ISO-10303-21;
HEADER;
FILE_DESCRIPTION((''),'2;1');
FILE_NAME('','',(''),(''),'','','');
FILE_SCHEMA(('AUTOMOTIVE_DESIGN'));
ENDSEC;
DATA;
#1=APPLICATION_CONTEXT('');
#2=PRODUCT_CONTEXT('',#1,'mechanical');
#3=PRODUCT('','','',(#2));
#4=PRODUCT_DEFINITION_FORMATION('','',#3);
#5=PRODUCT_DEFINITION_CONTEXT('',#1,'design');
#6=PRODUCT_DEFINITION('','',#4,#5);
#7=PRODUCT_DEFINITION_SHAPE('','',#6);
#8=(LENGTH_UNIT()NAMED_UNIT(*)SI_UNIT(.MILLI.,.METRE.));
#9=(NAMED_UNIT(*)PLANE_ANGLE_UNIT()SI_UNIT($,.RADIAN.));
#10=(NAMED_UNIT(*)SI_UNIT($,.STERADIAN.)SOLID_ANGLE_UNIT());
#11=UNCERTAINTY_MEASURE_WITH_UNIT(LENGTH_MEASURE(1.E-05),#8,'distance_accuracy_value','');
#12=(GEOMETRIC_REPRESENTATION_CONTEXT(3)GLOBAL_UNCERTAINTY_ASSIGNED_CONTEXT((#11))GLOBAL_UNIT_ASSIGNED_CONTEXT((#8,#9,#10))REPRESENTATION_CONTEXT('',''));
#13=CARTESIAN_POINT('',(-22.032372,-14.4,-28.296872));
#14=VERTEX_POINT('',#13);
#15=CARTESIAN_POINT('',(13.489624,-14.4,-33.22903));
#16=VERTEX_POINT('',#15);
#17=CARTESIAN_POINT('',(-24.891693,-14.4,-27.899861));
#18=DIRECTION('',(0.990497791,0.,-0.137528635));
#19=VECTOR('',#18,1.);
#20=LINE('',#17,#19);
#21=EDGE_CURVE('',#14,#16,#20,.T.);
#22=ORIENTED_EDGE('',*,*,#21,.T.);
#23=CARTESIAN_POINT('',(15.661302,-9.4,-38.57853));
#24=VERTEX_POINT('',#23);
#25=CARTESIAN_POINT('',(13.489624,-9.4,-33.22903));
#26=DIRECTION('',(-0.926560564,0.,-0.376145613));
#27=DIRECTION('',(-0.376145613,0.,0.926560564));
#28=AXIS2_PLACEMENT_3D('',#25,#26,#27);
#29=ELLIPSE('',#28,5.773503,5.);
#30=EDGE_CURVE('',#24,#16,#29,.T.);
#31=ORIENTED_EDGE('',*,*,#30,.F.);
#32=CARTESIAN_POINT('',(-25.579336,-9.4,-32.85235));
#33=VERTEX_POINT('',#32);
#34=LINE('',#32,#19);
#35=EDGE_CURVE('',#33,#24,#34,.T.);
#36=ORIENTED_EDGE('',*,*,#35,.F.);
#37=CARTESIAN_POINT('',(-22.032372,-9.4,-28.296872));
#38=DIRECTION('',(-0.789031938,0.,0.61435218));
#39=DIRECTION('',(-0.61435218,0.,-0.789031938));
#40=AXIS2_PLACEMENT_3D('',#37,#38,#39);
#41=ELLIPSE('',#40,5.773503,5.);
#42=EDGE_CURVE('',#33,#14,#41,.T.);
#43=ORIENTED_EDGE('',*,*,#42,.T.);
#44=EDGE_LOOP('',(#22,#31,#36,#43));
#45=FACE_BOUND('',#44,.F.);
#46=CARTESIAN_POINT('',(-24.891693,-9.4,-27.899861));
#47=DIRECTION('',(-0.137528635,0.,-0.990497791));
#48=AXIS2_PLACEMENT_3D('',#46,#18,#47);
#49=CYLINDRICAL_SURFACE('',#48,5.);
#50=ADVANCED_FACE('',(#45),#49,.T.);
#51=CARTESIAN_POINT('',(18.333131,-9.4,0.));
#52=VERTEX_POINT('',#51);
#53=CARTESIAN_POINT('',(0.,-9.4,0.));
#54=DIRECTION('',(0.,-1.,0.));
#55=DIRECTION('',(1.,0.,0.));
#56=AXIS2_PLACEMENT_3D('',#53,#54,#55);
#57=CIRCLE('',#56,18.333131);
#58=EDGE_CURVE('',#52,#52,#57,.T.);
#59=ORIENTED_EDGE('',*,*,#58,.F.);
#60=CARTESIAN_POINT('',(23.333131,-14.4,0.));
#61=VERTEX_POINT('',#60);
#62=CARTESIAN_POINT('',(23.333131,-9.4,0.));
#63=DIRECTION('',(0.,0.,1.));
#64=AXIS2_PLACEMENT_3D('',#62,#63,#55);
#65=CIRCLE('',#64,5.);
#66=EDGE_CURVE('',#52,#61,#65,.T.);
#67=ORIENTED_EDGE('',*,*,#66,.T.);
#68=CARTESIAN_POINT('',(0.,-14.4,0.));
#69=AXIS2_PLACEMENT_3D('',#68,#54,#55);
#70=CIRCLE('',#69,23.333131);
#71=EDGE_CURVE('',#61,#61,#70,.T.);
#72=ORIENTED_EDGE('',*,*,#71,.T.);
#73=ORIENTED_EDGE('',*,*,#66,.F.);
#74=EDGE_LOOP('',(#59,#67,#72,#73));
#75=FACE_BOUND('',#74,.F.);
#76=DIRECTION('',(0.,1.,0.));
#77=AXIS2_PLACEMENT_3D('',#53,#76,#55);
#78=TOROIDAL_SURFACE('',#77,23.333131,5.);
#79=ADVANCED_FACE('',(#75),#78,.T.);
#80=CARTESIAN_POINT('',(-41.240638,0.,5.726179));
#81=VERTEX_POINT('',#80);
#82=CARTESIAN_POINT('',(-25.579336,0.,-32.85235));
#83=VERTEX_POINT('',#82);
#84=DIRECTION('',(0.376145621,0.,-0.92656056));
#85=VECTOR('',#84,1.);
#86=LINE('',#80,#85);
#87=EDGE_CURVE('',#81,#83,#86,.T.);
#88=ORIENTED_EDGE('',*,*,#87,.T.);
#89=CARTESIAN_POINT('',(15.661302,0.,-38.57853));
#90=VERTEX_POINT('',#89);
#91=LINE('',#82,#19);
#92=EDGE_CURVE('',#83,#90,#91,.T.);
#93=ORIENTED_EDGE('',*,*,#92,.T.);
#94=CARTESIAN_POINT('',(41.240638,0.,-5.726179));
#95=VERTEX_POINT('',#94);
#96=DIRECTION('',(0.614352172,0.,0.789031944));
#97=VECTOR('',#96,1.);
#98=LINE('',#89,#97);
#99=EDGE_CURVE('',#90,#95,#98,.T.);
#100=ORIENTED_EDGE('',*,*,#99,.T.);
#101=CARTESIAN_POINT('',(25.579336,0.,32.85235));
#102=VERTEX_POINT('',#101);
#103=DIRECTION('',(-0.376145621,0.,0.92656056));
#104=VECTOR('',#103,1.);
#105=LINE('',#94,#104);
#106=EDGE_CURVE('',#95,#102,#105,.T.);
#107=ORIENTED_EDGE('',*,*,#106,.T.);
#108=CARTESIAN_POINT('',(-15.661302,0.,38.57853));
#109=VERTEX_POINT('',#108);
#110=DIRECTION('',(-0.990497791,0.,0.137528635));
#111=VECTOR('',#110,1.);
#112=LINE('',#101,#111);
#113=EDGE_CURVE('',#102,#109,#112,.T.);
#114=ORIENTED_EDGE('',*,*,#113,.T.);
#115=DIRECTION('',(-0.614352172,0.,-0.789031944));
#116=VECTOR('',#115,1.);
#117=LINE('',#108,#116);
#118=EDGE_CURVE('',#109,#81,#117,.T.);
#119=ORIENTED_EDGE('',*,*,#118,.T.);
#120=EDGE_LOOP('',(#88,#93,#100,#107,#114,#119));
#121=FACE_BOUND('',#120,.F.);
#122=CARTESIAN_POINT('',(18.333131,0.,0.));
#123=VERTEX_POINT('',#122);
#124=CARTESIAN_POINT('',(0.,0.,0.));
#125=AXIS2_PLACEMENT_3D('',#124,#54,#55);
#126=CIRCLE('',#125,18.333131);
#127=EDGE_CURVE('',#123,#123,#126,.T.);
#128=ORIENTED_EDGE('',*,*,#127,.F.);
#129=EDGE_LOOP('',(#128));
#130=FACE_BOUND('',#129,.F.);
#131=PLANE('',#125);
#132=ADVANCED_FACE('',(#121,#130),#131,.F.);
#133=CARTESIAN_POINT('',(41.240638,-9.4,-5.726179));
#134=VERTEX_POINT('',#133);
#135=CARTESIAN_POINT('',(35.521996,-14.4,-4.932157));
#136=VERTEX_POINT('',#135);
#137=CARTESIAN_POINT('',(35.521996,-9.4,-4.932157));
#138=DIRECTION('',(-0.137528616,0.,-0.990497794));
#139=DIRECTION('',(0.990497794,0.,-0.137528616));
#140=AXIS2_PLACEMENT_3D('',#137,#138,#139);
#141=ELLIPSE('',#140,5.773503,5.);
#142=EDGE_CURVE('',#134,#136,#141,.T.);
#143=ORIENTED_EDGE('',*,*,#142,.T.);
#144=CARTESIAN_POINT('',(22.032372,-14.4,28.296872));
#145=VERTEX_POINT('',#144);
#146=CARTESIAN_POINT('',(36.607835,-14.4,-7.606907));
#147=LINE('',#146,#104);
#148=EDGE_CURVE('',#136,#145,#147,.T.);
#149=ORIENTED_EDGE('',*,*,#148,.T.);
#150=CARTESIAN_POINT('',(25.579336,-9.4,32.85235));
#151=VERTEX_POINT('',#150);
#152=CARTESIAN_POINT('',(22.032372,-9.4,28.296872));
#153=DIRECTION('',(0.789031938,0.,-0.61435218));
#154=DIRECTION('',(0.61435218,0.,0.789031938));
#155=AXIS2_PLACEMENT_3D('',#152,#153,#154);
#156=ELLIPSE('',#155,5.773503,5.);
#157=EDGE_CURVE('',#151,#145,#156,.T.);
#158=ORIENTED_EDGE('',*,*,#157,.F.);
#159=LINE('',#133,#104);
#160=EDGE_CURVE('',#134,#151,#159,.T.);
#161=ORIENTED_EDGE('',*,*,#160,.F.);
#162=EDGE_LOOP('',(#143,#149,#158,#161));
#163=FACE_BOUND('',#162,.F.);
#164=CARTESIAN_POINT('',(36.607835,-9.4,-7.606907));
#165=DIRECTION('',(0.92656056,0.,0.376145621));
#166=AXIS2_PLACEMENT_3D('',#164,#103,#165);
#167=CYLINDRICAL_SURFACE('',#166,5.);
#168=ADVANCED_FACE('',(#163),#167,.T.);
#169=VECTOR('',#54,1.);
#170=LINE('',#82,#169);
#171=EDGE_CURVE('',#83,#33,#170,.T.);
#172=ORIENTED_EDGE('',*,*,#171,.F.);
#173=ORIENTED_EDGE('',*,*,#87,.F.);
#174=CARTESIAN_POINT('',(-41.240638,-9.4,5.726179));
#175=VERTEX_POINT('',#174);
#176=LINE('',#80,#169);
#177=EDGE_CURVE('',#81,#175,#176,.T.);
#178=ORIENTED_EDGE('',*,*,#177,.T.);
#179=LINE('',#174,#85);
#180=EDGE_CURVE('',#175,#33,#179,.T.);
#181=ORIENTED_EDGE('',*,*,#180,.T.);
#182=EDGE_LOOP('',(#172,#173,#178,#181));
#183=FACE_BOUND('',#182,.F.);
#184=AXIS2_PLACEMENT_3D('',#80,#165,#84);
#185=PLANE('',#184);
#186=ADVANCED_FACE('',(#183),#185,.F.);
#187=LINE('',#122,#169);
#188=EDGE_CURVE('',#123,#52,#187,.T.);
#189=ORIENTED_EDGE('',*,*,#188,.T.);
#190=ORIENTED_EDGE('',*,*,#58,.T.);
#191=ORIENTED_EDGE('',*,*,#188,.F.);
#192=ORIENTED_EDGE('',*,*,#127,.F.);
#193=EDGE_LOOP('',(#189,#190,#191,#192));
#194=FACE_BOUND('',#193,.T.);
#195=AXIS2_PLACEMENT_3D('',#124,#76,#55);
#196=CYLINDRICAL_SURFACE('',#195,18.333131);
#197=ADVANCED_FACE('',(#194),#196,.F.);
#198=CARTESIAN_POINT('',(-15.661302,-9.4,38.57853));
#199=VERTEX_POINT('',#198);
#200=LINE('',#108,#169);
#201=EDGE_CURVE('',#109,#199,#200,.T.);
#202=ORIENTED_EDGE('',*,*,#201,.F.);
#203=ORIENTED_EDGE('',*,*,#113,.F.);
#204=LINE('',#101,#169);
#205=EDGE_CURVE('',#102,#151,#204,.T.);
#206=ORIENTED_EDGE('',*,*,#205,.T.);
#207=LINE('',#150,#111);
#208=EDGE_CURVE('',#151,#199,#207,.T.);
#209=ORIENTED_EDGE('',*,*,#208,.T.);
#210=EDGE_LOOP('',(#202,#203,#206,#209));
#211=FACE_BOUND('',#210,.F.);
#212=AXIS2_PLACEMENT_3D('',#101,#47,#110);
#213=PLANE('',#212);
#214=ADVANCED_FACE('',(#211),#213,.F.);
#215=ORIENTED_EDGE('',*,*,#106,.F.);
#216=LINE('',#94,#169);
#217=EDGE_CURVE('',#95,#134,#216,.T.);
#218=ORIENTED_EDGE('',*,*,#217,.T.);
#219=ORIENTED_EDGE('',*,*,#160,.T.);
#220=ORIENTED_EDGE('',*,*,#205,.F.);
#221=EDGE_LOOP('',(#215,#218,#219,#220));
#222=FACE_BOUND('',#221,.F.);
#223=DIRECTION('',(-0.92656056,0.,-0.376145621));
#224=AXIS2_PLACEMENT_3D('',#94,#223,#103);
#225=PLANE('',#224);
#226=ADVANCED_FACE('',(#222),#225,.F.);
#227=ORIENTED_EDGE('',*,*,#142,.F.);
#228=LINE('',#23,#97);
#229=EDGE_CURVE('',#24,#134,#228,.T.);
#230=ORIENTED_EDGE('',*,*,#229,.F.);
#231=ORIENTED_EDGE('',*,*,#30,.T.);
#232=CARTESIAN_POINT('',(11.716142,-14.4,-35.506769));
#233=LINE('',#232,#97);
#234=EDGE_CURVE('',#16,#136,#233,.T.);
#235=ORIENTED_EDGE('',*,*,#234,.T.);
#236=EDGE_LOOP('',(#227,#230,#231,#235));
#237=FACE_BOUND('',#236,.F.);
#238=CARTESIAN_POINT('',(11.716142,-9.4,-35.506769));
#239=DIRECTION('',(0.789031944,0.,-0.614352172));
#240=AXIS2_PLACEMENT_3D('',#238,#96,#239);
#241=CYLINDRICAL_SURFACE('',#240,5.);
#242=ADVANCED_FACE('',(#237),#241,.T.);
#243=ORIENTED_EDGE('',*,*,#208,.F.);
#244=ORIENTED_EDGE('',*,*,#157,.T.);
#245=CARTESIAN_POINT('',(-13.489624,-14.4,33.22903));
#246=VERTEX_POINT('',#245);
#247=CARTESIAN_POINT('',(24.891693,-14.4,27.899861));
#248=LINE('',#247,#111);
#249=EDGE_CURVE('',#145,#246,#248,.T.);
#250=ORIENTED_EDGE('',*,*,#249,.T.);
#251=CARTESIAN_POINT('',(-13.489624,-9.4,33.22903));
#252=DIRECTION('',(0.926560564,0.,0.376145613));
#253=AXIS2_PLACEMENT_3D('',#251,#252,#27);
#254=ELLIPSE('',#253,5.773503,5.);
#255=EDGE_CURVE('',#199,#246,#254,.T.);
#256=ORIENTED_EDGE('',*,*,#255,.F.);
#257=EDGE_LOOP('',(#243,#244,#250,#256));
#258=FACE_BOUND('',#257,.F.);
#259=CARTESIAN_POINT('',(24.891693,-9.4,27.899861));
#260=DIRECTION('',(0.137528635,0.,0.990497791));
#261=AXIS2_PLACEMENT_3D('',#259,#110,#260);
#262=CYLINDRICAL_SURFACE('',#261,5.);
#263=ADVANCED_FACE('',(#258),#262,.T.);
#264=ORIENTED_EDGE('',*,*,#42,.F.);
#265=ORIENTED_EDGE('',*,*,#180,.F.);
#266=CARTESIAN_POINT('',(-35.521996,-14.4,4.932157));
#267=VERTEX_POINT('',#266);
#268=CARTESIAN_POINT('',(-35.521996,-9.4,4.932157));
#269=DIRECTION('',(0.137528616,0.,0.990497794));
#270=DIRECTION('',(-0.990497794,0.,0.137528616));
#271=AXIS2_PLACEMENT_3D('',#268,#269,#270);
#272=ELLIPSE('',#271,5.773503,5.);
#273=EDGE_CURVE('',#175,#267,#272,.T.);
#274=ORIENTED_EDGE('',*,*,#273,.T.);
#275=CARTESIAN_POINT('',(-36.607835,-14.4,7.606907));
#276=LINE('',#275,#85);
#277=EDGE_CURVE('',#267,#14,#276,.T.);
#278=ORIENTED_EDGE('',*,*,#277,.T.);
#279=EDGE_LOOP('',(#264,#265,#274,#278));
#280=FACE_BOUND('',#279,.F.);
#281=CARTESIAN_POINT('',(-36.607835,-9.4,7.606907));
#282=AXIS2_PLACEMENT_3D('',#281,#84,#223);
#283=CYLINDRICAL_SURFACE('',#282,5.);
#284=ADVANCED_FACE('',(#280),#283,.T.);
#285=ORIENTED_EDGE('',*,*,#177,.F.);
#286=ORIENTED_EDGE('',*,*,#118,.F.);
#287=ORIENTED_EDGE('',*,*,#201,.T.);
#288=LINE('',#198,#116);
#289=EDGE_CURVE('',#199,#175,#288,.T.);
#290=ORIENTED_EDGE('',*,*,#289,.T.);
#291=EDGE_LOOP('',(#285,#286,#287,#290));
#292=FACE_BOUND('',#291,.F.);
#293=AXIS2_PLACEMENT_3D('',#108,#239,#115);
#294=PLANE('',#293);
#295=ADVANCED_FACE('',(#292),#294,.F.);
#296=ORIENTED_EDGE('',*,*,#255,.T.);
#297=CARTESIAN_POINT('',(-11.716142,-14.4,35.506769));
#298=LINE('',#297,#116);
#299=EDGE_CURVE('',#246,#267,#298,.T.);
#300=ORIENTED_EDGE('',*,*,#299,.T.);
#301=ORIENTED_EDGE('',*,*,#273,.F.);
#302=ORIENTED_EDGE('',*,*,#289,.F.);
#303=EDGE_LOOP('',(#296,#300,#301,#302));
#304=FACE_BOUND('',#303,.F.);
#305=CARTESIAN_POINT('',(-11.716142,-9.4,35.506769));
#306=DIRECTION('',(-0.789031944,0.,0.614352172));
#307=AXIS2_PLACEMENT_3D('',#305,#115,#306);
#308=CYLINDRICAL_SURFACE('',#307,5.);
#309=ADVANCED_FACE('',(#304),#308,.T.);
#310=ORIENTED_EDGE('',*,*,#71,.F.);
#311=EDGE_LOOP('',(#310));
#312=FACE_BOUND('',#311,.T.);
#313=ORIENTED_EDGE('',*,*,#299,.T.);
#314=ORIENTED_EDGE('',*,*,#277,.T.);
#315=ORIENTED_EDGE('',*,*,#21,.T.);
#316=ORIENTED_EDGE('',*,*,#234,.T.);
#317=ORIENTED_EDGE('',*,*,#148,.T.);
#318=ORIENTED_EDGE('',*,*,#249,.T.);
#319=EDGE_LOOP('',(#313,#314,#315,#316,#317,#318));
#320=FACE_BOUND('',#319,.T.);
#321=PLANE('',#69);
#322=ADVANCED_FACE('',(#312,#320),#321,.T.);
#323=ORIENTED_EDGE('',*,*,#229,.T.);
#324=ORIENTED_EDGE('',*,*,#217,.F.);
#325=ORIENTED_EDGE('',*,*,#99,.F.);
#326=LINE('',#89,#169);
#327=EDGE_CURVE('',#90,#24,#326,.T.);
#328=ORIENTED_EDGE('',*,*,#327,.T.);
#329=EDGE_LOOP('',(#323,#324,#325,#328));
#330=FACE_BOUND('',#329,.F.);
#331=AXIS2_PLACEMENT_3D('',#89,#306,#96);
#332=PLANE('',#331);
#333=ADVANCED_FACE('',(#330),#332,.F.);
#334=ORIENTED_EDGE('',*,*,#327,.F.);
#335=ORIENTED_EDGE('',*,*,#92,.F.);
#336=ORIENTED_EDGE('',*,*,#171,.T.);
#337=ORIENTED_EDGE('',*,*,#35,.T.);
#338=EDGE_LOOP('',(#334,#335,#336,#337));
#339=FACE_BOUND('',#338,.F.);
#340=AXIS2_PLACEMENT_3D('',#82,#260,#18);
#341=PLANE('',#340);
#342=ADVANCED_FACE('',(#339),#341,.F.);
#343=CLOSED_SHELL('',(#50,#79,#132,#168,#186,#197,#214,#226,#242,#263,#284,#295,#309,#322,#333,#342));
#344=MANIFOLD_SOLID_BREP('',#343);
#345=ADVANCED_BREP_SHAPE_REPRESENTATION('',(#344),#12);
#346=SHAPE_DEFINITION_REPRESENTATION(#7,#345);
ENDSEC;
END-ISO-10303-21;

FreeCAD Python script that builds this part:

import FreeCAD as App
import Part
import Sketcher

V = App.Vector
Q = App.Units.Quantity


def edges_at(feature, points):
    """Names of the edges that pass closest to the given points."""
    edges = feature.Shape.Edges
    near = lambda p: min(range(len(edges)), key=lambda i: edges[i].distToShape(Part.Vertex(*p))[0])
    return sorted({f"Edge{near(p) + 1}" for p in points})

doc = App.newDocument("Part")
body = doc.addObject("PartDesign::Body", "Body")

# Sketch on XZ plane
sketch1 = body.newObject("Sketcher::SketchObject", "Sketch")
sketch1.AttachmentSupport = (doc.getObject("XZ_Plane"), [""])
sketch1.MapMode = "FlatFace"
sketch1.addGeometry([
    Part.LineSegment(V(-41, 6, 0), V(-26, -33, 0)),  # 0
    Part.LineSegment(V(-26, -33, 0), V(16, -39, 0)),  # 1
    Part.LineSegment(V(16, -39, 0), V(41, -6, 0)),  # 2
    Part.LineSegment(V(41, -6, 0), V(26, 33, 0)),  # 3
    Part.LineSegment(V(26, 33, 0), V(-16, 39, 0)),  # 4
    Part.LineSegment(V(-16, 39, 0), V(-41, 6, 0)),  # 5
    Part.Circle(V(0, 0, 0), V(0, 0, 1), 18),  # 6
], False)
sketch1.addConstraint([
    Sketcher.Constraint("Coincident", 0, 2, 1, 1),
    Sketcher.Constraint("Coincident", 1, 2, 2, 1),
    Sketcher.Constraint("Coincident", 2, 2, 3, 1),
    Sketcher.Constraint("Coincident", 3, 2, 4, 1),
    Sketcher.Constraint("Coincident", 4, 2, 5, 1),
    Sketcher.Constraint("Coincident", 5, 2, 0, 1),
    Sketcher.Constraint("Coincident", 6, 3, -1, 1),
    Sketcher.Constraint("Symmetric", 0, 2, 3, 2, -1, 1),
    Sketcher.Constraint("Symmetric", 1, 2, 4, 2, -1, 1),
    Sketcher.Constraint("Symmetric", 2, 2, 5, 2, -1, 1),
    Sketcher.Constraint("Equal", 0, 1),
    Sketcher.Constraint("Equal", 1, 2),
    Sketcher.Constraint("Diameter", 6, Q("36.666262 mm")),
    Sketcher.Constraint("DistanceX", -1, 1, 1, 2, Q("15.661302 mm")),
    Sketcher.Constraint("DistanceX", 3, 2, 2, 2, Q("15.661302 mm")),
    Sketcher.Constraint("DistanceY", 0, 2, 3, 2, Q("65.7047 mm")),
    Sketcher.Constraint("DistanceY", 1, 2, -1, 1, Q("38.57853 mm")),
])
pad1 = body.newObject("PartDesign::Pad", "Pad")
pad1.Profile = sketch1
pad1.Length = 14.4
doc.recompute()

fillet = body.newObject("PartDesign::Fillet", "Fillet")
fillet.Base = (pad1, edges_at(pad1, [
    (-18.333, -14.4, 0),
    (28.451, -14.4, -22.152),
    (33.41, -14.4, 13.563),
    (4.959, -14.4, 35.715),
    (-28.451, -14.4, 22.152),
    (-33.41, -14.4, -13.563),
    (-4.959, -14.4, -35.715),
]))
fillet.Radius = 5

doc.recompute()
